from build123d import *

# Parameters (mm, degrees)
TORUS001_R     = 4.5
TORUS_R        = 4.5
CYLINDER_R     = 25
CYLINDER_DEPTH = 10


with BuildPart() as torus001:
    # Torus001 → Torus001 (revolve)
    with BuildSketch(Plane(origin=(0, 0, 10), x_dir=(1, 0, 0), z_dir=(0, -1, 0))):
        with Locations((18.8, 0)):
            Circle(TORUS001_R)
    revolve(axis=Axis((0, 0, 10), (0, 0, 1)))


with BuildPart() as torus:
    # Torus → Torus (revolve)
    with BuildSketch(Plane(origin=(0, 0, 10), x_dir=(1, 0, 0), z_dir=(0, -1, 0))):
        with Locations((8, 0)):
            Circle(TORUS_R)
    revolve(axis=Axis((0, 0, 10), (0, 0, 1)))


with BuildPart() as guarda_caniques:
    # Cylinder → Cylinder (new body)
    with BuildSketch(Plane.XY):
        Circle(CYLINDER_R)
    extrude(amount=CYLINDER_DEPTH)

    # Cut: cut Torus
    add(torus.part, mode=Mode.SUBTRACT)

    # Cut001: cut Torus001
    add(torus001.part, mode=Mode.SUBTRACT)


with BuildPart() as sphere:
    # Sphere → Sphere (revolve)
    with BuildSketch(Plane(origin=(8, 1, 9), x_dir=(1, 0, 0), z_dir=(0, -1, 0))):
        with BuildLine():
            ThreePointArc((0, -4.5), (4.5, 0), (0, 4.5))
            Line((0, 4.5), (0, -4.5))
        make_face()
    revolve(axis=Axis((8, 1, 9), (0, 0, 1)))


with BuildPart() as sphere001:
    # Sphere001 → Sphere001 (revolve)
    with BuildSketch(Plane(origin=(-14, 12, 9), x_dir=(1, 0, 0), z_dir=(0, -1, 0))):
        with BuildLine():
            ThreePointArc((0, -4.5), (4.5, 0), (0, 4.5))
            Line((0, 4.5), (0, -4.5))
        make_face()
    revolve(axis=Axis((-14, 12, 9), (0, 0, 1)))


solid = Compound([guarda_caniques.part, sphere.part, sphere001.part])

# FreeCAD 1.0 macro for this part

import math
import FreeCAD as App
import Part
import Sketcher

V = App.Vector

doc = App.newDocument("Part")
body = doc.addObject("PartDesign::Body", "Body")

# Sketch on XZ plane
sketch1 = body.newObject("Sketcher::SketchObject", "Sketch")
sketch1.AttachmentSupport = (doc.getObject("XZ_Plane"), [""])
sketch1.MapMode = "FlatFace"
sketch1.addGeometry(Part.Circle(V(18.8, 10, 0), V(0, 0, 1), 4.5), False)
sketch1.addConstraint(Sketcher.Constraint("Diameter", 0, 9.0))
sketch1.addConstraint(Sketcher.Constraint("DistanceY", -1, 1, 0, 3, 10.0))
sketch1.addConstraint(Sketcher.Constraint("DistanceX", -1, 1, 0, 3, 18.8))
revolution = body.newObject("PartDesign::Revolution", "Revolution")
revolution.Profile = sketch1
revolution.ReferenceAxis = (sketch1, ["V_Axis"])
revolution.Angle = 360
body2 = doc.addObject("PartDesign::Body", "Body001")

# Sketch on XZ plane
sketch2 = body2.newObject("Sketcher::SketchObject", "Sketch001")
sketch2.AttachmentSupport = (doc.getObject("XZ_Plane001"), [""])
sketch2.MapMode = "FlatFace"
sketch2.addGeometry(Part.Circle(V(8, 10, 0), V(0, 0, 1), 4.5), False)
sketch2.addConstraint(Sketcher.Constraint("Diameter", 0, 9.0))
sketch2.addConstraint(Sketcher.Constraint("DistanceX", -1, 1, 0, 3, 8.0))
sketch2.addConstraint(Sketcher.Constraint("DistanceY", -1, 1, 0, 3, 10.0))
revolution2 = body2.newObject("PartDesign::Revolution", "Revolution001")
revolution2.Profile = sketch2
revolution2.ReferenceAxis = (sketch2, ["V_Axis"])
revolution2.Angle = 360
body3 = doc.addObject("PartDesign::Body", "Body002")

# Sketch on XY plane
sketch3 = body3.newObject("Sketcher::SketchObject", "Sketch002")
sketch3.AttachmentSupport = (doc.getObject("XY_Plane002"), [""])
sketch3.MapMode = "FlatFace"
sketch3.addGeometry(Part.Circle(V(0, 0, 0), V(0, 0, 1), 25), False)
sketch3.addConstraint(Sketcher.Constraint("Coincident", 0, 3, -1, 1))
sketch3.addConstraint(Sketcher.Constraint("Diameter", 0, 50.0))
pad1 = body3.newObject("PartDesign::Pad", "Pad")
pad1.Profile = sketch3
pad1.Length = 10
doc.recompute()

boolean = body3.newObject("PartDesign::Boolean", "Boolean")
boolean.Type = "Cut"
boolean.addObjects([body2])
doc.recompute()

boolean2 = body3.newObject("PartDesign::Boolean", "Boolean001")
boolean2.Type = "Cut"
boolean2.addObjects([body])
body4 = doc.addObject("PartDesign::Body", "Body003")

# Sketch on XZ plane
sketch4 = body4.newObject("Sketcher::SketchObject", "Sketch003")
sketch4.AttachmentSupport = (doc.getObject("XZ_Plane003"), [""])
sketch4.MapMode = "FlatFace"
sketch4.AttachmentOffset = App.Placement(V(0, 0, -1), App.Rotation())
sketch4.addGeometry(Part.ArcOfCircle(Part.Circle(V(8, 9, 0), V(0, 0, 1), 4.5), math.radians(-90), math.radians(90)), False)
sketch4.addGeometry(Part.LineSegment(V(8, 13.5, 0), V(8, 4.5, 0)), False)
sketch4.addGeometry(Part.LineSegment(V(8, 4.5, 0), V(8, 13.5, 0)), True)  # axis
sketch4.addConstraint(Sketcher.Constraint("Coincident", 0, 1, 1, 2))
sketch4.addConstraint(Sketcher.Constraint("Coincident", 1, 1, 0, 2))
sketch4.addConstraint(Sketcher.Constraint("Vertical", 1))
sketch4.addConstraint(Sketcher.Constraint("Vertical", 2))
sketch4.addConstraint(Sketcher.Constraint("Coincident", 2, 1, 0, 1))
sketch4.addConstraint(Sketcher.Constraint("Equal", 1, 2))
sketch4.addConstraint(Sketcher.Constraint("Radius", 0, 4.5))
sketch4.addConstraint(Sketcher.Constraint("DistanceX", -1, 1, 0, 3, 8.0))
sketch4.addConstraint(Sketcher.Constraint("DistanceY", -1, 1, 0, 3, 9.0))
sketch4.addConstraint(Sketcher.Constraint("DistanceX", -1, 1, 0, 1, 8.0))
revolution3 = body4.newObject("PartDesign::Revolution", "Revolution002")
revolution3.Profile = sketch4
revolution3.ReferenceAxis = (sketch4, ["Axis0"])
revolution3.Angle = 360
body5 = doc.addObject("PartDesign::Body", "Body004")

# Sketch on XZ plane
sketch5 = body5.newObject("Sketcher::SketchObject", "Sketch004")
sketch5.AttachmentSupport = (doc.getObject("XZ_Plane004"), [""])
sketch5.MapMode = "FlatFace"
sketch5.AttachmentOffset = App.Placement(V(0, 0, -12), App.Rotation())
sketch5.addGeometry(Part.ArcOfCircle(Part.Circle(V(-14, 9, 0), V(0, 0, 1), 4.5), math.radians(-90), math.radians(90)), False)
sketch5.addGeometry(Part.LineSegment(V(-14, 13.5, 0), V(-14, 4.5, 0)), False)
sketch5.addGeometry(Part.LineSegment(V(-14, 4.5, 0), V(-14, 13.5, 0)), True)  # axis
sketch5.addConstraint(Sketcher.Constraint("Coincident", 0, 1, 1, 2))
sketch5.addConstraint(Sketcher.Constraint("Coincident", 1, 1, 0, 2))
sketch5.addConstraint(Sketcher.Constraint("Vertical", 1))
sketch5.addConstraint(Sketcher.Constraint("Vertical", 2))
sketch5.addConstraint(Sketcher.Constraint("Coincident", 2, 1, 0, 1))
sketch5.addConstraint(Sketcher.Constraint("Equal", 1, 2))
sketch5.addConstraint(Sketcher.Constraint("Radius", 0, 4.5))
sketch5.addConstraint(Sketcher.Constraint("DistanceX", 0, 3, -1, 1, 14.0))
sketch5.addConstraint(Sketcher.Constraint("DistanceY", -1, 1, 0, 3, 9.0))
sketch5.addConstraint(Sketcher.Constraint("DistanceX", 0, 1, -1, 1, 14.0))
revolution4 = body5.newObject("PartDesign::Revolution", "Revolution003")
revolution4.Profile = sketch5
revolution4.ReferenceAxis = (sketch5, ["Axis0"])
revolution4.Angle = 360

doc.recompute()
